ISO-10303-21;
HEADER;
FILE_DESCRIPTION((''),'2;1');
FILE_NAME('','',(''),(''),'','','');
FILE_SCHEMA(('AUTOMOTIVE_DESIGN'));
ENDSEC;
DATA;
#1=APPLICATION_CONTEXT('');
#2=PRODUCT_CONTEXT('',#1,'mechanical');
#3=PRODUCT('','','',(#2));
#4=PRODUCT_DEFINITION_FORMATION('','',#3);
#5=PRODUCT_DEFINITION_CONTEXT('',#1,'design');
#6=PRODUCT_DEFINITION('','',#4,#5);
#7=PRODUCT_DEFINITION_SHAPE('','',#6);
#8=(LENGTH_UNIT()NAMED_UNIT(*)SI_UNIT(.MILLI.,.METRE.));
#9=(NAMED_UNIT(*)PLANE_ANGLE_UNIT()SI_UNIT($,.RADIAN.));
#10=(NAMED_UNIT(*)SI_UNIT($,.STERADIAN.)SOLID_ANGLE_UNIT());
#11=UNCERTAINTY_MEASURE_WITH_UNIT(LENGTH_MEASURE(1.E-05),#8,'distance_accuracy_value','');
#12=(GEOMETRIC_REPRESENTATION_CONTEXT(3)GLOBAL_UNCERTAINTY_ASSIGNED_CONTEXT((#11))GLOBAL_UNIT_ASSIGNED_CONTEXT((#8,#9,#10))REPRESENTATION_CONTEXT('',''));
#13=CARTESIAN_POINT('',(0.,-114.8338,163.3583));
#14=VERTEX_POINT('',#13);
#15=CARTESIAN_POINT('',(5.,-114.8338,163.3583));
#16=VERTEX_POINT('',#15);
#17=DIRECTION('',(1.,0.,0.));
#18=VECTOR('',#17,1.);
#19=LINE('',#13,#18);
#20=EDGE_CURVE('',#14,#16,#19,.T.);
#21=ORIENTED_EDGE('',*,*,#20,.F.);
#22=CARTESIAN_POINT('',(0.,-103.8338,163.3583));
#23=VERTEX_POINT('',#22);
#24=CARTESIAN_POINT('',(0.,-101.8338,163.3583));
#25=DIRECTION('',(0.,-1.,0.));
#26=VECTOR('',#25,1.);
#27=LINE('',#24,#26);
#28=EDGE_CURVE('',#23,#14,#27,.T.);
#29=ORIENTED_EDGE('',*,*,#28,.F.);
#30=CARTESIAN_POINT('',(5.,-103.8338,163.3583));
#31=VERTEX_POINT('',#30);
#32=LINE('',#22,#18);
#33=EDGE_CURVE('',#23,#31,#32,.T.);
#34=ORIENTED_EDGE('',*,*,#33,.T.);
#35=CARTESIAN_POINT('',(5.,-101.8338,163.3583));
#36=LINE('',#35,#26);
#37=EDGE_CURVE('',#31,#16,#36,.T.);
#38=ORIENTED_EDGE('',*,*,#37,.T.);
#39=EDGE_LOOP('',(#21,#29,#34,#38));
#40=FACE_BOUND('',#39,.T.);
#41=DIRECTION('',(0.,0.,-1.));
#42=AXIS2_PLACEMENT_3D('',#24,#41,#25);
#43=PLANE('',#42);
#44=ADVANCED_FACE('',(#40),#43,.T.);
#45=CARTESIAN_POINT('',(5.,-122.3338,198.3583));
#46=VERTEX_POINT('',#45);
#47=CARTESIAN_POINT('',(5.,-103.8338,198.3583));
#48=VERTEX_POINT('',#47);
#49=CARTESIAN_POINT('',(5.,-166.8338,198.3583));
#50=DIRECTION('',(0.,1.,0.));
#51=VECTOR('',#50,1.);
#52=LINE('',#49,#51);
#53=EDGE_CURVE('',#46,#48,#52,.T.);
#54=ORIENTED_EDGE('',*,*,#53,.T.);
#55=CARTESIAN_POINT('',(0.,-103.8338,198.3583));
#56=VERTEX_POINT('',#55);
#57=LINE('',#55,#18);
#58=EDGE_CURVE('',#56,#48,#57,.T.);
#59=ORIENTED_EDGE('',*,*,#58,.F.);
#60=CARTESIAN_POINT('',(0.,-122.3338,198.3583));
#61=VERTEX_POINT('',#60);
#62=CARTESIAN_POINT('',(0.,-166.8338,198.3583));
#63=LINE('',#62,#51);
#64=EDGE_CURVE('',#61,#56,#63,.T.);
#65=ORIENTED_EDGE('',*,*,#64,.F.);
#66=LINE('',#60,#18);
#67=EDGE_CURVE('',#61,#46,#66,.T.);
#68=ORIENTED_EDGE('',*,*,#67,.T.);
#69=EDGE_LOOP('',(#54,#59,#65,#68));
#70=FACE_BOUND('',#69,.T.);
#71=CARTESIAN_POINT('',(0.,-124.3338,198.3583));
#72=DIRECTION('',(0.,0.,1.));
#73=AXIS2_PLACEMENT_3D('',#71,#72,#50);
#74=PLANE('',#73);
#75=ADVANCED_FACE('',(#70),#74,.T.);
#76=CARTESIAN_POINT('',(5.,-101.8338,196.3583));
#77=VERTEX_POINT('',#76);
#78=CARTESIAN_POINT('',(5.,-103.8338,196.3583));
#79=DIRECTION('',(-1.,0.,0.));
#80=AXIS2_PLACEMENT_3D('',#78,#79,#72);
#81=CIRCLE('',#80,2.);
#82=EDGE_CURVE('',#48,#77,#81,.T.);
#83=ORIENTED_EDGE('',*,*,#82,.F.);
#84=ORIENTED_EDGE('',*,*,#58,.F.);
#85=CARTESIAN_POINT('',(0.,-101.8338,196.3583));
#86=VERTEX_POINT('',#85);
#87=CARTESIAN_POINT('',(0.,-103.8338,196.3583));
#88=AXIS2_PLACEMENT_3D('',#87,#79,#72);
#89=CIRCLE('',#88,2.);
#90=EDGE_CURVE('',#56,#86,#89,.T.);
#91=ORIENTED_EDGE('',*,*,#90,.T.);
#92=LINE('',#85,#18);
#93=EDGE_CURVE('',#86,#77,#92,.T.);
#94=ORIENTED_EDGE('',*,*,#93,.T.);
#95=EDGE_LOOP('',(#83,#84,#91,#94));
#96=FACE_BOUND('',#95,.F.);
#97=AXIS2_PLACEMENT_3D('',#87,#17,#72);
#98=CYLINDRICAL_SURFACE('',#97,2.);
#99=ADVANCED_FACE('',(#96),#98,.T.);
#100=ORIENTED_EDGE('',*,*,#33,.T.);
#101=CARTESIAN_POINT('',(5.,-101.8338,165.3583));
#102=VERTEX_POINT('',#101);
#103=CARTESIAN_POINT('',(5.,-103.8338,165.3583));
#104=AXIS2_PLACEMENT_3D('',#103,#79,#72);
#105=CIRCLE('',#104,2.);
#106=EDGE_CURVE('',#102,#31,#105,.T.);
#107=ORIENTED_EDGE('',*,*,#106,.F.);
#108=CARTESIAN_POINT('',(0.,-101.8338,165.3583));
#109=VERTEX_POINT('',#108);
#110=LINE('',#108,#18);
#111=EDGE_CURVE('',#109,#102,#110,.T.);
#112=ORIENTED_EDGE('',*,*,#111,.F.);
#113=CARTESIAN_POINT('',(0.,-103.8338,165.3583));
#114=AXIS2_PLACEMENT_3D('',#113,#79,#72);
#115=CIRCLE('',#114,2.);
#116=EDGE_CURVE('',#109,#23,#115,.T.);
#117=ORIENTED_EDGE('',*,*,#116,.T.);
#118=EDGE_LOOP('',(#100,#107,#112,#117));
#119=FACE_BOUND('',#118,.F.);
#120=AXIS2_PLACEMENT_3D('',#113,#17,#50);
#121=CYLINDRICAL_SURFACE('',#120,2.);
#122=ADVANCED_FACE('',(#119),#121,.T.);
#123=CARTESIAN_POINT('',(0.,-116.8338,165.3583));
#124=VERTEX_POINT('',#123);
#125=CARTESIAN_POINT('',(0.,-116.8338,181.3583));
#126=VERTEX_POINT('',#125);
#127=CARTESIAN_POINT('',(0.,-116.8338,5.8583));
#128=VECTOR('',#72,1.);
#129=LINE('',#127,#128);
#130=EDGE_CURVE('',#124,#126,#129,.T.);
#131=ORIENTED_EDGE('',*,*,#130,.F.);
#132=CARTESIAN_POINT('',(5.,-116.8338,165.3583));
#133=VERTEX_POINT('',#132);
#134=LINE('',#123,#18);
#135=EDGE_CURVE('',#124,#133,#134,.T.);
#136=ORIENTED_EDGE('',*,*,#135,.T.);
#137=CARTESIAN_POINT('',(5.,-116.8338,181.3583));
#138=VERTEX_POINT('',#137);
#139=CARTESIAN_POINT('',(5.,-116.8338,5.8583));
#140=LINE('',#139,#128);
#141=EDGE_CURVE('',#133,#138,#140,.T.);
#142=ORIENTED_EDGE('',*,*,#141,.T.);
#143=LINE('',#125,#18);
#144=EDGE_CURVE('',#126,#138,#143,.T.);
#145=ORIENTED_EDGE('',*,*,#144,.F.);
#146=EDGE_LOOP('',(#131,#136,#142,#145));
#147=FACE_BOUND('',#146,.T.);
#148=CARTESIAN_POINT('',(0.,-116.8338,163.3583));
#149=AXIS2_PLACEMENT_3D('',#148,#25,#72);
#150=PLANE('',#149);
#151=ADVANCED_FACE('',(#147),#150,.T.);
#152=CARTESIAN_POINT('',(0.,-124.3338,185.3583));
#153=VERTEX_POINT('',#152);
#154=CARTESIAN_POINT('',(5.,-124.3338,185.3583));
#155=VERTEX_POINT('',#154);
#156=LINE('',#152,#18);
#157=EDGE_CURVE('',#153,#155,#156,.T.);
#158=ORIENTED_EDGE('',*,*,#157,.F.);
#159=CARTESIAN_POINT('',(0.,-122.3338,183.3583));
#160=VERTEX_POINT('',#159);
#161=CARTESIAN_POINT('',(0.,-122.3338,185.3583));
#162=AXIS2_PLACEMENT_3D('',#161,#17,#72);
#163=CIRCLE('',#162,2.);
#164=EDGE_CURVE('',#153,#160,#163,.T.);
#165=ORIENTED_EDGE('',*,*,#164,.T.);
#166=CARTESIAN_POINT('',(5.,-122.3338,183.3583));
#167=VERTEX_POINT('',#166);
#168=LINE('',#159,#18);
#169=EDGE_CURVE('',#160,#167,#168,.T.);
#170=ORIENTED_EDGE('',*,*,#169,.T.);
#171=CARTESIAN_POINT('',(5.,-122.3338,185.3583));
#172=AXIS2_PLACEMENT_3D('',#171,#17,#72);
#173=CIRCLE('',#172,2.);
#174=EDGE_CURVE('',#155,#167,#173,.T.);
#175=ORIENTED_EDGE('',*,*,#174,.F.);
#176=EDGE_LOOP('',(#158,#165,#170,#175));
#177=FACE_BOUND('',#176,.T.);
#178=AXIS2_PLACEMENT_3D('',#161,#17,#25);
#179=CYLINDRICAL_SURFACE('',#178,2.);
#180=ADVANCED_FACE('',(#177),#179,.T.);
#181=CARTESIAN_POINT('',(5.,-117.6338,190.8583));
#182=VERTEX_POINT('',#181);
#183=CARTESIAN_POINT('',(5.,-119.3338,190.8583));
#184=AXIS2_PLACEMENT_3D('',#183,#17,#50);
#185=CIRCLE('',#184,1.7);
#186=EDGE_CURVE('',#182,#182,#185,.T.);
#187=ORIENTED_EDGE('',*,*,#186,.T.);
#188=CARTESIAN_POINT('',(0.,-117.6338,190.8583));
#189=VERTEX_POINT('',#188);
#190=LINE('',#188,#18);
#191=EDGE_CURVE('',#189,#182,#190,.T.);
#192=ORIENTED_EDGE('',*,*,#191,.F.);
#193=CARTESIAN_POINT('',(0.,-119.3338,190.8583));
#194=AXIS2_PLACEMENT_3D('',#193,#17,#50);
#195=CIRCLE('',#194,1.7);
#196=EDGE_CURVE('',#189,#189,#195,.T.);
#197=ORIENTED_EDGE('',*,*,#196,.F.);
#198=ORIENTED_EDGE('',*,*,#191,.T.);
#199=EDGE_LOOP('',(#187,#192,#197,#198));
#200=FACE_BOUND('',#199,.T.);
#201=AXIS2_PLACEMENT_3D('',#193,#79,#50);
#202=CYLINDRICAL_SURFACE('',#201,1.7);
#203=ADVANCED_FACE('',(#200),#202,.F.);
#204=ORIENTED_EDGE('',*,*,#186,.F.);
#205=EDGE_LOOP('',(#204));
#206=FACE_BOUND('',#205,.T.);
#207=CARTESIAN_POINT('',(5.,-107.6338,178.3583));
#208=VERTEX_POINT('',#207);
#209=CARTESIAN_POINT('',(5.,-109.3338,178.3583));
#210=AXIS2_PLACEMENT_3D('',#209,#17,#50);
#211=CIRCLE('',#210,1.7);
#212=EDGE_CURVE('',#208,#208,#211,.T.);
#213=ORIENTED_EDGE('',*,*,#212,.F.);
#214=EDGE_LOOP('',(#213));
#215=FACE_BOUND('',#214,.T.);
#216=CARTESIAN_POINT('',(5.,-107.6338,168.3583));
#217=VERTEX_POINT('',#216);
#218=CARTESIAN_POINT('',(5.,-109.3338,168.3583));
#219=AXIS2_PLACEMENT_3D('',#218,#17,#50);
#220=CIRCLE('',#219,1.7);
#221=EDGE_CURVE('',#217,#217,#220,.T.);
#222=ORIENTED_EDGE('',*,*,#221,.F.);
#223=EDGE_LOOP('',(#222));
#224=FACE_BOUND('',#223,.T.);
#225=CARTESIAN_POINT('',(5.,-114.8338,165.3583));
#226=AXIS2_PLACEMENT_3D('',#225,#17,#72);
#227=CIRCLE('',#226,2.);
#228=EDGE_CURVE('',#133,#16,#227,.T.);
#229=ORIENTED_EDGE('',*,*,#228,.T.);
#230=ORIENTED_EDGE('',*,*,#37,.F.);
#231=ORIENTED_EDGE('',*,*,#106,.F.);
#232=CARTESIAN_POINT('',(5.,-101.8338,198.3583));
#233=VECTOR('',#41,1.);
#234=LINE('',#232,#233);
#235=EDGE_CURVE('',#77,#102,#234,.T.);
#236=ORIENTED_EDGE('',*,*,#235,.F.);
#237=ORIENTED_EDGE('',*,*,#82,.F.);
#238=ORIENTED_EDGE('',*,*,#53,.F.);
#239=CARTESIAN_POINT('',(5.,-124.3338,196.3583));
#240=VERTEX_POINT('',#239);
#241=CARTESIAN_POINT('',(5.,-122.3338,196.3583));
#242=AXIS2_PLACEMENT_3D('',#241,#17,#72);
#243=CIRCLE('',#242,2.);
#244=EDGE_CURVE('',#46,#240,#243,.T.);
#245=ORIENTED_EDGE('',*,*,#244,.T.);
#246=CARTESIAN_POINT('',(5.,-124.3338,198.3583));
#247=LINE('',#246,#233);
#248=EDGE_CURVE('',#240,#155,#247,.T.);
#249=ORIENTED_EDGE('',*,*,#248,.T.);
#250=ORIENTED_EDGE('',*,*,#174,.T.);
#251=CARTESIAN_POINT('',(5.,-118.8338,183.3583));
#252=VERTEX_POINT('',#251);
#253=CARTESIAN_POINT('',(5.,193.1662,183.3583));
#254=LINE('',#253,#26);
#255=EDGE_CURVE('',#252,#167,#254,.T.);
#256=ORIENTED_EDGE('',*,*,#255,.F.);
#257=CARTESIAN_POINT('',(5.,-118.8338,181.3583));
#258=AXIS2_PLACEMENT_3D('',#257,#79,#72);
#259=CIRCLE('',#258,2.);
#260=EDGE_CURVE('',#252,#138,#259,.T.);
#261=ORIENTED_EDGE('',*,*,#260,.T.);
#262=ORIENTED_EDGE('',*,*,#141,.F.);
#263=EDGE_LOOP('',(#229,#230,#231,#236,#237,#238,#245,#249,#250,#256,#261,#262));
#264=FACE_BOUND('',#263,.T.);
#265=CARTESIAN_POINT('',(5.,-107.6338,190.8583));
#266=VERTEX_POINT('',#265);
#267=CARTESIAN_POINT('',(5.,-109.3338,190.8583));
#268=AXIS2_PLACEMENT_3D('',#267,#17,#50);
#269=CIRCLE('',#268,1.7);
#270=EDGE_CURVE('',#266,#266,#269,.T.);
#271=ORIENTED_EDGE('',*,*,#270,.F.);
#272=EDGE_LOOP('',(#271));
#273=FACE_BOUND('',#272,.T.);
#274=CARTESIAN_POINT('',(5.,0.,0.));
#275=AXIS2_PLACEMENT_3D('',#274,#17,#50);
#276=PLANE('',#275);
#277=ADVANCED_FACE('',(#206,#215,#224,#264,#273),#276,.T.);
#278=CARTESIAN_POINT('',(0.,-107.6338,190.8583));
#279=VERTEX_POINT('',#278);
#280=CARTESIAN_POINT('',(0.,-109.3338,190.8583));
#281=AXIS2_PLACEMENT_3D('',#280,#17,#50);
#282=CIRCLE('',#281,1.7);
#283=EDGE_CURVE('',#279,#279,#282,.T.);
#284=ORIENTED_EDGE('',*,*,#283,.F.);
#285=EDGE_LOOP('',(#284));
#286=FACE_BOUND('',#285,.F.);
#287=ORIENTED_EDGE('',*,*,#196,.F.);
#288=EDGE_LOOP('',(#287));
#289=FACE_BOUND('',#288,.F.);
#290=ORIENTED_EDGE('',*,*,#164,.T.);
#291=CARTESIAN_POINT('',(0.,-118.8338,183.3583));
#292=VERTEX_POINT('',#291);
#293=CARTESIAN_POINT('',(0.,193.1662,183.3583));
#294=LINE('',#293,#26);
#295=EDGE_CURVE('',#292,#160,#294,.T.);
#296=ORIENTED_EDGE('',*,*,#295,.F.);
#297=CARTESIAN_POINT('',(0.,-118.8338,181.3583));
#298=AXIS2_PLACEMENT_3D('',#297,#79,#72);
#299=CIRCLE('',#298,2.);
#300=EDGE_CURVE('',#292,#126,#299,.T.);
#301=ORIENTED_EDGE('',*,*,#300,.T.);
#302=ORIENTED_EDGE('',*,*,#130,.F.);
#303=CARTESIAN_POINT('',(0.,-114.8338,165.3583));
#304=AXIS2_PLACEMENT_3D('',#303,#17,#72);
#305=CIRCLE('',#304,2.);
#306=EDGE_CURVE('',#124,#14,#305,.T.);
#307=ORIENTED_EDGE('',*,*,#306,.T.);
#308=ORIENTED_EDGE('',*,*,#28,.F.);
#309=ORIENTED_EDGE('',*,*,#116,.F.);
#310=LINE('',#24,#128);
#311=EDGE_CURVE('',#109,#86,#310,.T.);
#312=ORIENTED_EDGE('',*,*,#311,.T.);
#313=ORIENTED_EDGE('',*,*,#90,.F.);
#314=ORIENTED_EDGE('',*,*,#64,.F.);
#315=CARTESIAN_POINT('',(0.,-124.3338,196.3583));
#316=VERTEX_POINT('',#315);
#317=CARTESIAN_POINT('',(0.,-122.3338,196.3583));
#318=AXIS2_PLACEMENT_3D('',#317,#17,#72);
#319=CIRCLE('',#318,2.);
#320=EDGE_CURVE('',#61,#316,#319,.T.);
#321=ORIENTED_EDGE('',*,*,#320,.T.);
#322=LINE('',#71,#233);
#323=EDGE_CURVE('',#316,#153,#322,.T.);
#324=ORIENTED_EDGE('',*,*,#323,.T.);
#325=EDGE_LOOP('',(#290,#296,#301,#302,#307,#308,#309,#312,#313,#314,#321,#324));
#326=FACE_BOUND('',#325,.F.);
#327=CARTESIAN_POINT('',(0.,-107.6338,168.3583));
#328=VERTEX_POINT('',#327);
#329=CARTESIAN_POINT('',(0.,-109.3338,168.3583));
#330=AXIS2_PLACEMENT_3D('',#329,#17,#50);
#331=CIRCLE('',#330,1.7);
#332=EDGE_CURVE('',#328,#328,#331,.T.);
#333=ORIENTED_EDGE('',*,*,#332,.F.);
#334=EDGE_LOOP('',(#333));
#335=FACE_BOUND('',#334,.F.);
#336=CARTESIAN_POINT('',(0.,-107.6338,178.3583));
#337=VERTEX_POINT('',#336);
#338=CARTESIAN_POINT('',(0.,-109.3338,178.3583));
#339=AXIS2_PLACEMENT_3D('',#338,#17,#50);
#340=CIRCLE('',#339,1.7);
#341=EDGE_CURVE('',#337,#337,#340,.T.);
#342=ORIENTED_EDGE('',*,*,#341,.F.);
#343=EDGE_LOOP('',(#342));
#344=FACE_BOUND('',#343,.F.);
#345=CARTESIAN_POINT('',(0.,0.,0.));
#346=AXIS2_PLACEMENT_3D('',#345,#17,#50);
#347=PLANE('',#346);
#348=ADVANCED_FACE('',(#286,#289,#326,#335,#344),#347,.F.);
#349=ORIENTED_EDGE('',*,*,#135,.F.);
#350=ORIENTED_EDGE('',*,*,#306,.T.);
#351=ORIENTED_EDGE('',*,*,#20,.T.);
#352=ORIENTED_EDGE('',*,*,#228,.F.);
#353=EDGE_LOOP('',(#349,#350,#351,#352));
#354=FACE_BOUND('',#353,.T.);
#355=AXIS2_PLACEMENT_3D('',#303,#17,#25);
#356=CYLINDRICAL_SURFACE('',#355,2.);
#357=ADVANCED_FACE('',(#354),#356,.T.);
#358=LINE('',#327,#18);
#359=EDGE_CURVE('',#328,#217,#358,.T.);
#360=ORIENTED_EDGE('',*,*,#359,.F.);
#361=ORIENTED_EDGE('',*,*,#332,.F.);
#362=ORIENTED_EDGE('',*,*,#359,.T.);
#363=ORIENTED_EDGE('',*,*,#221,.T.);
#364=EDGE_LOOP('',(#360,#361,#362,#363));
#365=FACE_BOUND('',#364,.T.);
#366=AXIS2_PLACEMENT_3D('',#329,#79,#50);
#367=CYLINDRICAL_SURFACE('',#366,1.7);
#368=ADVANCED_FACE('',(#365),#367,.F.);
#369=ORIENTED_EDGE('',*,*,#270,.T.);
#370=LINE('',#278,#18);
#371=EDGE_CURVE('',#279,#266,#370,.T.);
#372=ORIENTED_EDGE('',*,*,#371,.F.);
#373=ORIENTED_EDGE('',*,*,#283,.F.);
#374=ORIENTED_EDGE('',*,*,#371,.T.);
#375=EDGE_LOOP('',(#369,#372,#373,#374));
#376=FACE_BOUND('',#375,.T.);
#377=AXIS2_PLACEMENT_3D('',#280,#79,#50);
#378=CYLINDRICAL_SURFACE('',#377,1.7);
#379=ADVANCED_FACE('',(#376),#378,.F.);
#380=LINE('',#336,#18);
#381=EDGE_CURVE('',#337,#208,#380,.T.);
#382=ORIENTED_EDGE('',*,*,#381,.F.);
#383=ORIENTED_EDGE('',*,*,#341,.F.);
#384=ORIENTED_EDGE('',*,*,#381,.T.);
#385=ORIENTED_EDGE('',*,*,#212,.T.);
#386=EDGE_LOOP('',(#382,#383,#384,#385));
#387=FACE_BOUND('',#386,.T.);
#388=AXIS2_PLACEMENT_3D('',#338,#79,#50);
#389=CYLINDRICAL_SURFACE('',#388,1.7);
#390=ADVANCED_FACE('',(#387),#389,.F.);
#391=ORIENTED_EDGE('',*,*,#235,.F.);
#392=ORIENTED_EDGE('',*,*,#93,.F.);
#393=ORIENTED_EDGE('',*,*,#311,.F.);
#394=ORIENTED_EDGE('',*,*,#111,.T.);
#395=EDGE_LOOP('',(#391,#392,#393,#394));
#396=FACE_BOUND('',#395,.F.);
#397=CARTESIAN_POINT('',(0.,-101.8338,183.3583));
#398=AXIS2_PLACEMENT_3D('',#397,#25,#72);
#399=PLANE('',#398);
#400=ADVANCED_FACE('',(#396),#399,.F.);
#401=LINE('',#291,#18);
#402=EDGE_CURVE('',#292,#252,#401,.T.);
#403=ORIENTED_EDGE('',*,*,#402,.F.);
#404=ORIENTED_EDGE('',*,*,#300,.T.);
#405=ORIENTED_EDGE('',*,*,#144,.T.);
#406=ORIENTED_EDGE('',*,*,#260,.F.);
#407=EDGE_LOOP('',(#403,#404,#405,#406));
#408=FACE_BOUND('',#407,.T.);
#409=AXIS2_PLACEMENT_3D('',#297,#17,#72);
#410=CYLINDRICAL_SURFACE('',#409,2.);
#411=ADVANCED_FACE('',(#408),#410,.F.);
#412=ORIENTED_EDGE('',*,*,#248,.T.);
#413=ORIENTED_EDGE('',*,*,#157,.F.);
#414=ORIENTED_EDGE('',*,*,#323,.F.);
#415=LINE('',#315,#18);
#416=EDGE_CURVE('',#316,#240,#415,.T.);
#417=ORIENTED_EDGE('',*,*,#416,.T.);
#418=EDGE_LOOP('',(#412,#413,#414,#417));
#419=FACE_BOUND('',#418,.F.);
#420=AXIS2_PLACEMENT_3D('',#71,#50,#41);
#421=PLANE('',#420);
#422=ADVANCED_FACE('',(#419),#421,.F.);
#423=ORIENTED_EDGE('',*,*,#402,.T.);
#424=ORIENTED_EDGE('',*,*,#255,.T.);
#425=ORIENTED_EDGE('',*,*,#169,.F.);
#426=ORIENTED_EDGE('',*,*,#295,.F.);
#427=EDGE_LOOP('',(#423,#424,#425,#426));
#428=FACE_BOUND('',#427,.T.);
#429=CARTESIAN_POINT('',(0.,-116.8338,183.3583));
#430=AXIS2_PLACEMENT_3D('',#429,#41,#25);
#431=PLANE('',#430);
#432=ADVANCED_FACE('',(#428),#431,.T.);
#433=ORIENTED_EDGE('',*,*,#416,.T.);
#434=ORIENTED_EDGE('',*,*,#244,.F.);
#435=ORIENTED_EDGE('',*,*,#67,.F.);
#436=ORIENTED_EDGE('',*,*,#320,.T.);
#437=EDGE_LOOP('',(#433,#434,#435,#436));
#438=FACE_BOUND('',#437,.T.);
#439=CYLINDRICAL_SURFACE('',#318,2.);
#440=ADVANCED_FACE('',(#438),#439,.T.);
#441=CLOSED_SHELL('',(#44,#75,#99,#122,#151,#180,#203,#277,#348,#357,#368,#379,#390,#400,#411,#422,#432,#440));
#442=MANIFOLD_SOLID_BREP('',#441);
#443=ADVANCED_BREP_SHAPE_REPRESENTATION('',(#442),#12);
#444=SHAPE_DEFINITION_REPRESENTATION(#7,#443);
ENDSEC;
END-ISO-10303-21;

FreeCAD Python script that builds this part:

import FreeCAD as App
import Part
import Sketcher
from FreeCAD import Vector
Q = App.Units.Quantity


def edges_at(feature, points):
    """Names of the edges that pass closest to the given points."""
    edges = feature.Shape.Edges
    near = lambda p: min(range(len(edges)), key=lambda i: edges[i].distToShape(Part.Vertex(*p))[0])
    return sorted({f"Edge{near(p) + 1}" for p in points})


def add_polygon(sketch, points):
    """Adds a closed chain of lines whose ends are joined by coincident constraints."""
    first, n = sketch.GeometryCount, len(points)
    for a, b in zip(points, points[1:] + points[:1]):
        sketch.addGeometry(Part.LineSegment(App.Vector(*a, 0), App.Vector(*b, 0)), False)
    for i in range(n):
        sketch.addConstraint(Sketcher.Constraint("Coincident", first + i, 2, first + (i + 1) % n, 1))

doc = App.newDocument("Part")
params = doc.addObject("Spreadsheet::Sheet", "Params")
for row, (alias, value) in enumerate([
    ("sketch1_diameter", "3.4 mm"),
    ("sketch1_height", "20 mm"),
    ("sketch1_width", "7.5 mm"),
    ("pad1_length", "5 mm"),
    ("fillet_radius", "2 mm"),
], start=1):
    params.set(f"A{row}", alias)
    params.set(f"B{row}", "=" + value)
    params.setAlias(f"B{row}", alias)

body = doc.addObject("PartDesign::Body", "Body")

sketch1 = doc.addObject("Sketcher::SketchObject", "Sketch")
body.addObject(sketch1)
sketch1.AttachmentSupport = (doc.YZ_Plane, [""])
sketch1.MapMode = "FlatFace"
add_polygon(sketch1, [(-101.8338, 198.3583), (-124.3338, 198.3583), (-124.3338, 183.3583), (-116.8338, 183.3583), (-116.8338, 163.3583), (-101.8338, 163.3583)])
sketch1.addGeometry(Part.Circle(Vector(-119.3338, 190.8583, 0), Vector(0, 0, 1), 1.7), False)
sketch1.addGeometry(Part.Circle(Vector(-109.3338, 190.8583, 0), Vector(0, 0, 1), 1.7), False)
sketch1.addGeometry(Part.Circle(Vector(-109.3338, 178.3583, 0), Vector(0, 0, 1), 1.7), False)
sketch1.addGeometry(Part.Circle(Vector(-109.3338, 168.3583, 0), Vector(0, 0, 1), 1.7), False)
sketch1.addConstraint([
    Sketcher.Constraint("Horizontal", 0),
    Sketcher.Constraint("Vertical", 1),
    Sketcher.Constraint("Horizontal", 2),
    Sketcher.Constraint("Vertical", 3),
    Sketcher.Constraint("Horizontal", 4),
    Sketcher.Constraint("Vertical", 5),
    Sketcher.Constraint("Equal", 6, 7),
    Sketcher.Constraint("Equal", 7, 8),
    Sketcher.Constraint("Equal", 8, 9),
    Sketcher.Constraint("Horizontal", 6, 3, 7, 3),
    Sketcher.Constraint("Vertical", 7, 3, 8, 3),
    Sketcher.Constraint("Vertical", 8, 3, 9, 3),
    Sketcher.Constraint("Equal", 4, 1),
    Sketcher.Constraint("Diameter", 6, Q("3.4 mm")),
    Sketcher.Constraint("DistanceY", 3, 2, 3, 1, Q("20 mm")),
    Sketcher.Constraint("DistanceX", 2, 1, 2, 2, Q("7.5 mm")),
    Sketcher.Constraint("DistanceX", 6, 3, 7, 3, Q("10 mm")),
    Sketcher.Constraint("DistanceY", 9, 3, 8, 3, Q("10 mm")),
    Sketcher.Constraint("DistanceX", 0, 2, 6, 3, Q("5 mm")),
    Sketcher.Constraint("DistanceY", 8, 3, 0, 2, Q("20 mm")),
    Sketcher.Constraint("DistanceY", 8, 3, 1, 2, Q("5 mm")),
    Sketcher.Constraint("DistanceY", 6, 3, 0, 2, Q("7.5 mm")),
    Sketcher.Constraint("DistanceX", 6, 3, -1, 1, Q("119.3338 mm")),
    Sketcher.Constraint("DistanceY", -1, 1, 6, 3, Q("190.8583 mm")),
])
sketch1.setExpression("Constraints[19]", "Params.sketch1_diameter")
sketch1.setExpression("Constraints[20]", "Params.sketch1_height")
sketch1.setExpression("Constraints[21]", "Params.sketch1_width")
pad1 = doc.addObject("PartDesign::Pad", "Pad")
body.addObject(pad1)
pad1.Profile = sketch1
pad1.setExpression("Length", "Params.pad1_length")
doc.recompute()

fillet = doc.addObject("PartDesign::Fillet", "Fillet")
body.addObject(fillet)
fillet.Base = (pad1, edges_at(pad1, [
    (2.5, -101.834, 198.358),
    (2.5, -124.334, 198.358),
    (2.5, -124.334, 183.358),
    (2.5, -116.834, 183.358),
    (2.5, -116.834, 163.358),
    (2.5, -101.834, 163.358),
]))
fillet.setExpression("Radius", "Params.fillet_radius")

doc.recompute()
